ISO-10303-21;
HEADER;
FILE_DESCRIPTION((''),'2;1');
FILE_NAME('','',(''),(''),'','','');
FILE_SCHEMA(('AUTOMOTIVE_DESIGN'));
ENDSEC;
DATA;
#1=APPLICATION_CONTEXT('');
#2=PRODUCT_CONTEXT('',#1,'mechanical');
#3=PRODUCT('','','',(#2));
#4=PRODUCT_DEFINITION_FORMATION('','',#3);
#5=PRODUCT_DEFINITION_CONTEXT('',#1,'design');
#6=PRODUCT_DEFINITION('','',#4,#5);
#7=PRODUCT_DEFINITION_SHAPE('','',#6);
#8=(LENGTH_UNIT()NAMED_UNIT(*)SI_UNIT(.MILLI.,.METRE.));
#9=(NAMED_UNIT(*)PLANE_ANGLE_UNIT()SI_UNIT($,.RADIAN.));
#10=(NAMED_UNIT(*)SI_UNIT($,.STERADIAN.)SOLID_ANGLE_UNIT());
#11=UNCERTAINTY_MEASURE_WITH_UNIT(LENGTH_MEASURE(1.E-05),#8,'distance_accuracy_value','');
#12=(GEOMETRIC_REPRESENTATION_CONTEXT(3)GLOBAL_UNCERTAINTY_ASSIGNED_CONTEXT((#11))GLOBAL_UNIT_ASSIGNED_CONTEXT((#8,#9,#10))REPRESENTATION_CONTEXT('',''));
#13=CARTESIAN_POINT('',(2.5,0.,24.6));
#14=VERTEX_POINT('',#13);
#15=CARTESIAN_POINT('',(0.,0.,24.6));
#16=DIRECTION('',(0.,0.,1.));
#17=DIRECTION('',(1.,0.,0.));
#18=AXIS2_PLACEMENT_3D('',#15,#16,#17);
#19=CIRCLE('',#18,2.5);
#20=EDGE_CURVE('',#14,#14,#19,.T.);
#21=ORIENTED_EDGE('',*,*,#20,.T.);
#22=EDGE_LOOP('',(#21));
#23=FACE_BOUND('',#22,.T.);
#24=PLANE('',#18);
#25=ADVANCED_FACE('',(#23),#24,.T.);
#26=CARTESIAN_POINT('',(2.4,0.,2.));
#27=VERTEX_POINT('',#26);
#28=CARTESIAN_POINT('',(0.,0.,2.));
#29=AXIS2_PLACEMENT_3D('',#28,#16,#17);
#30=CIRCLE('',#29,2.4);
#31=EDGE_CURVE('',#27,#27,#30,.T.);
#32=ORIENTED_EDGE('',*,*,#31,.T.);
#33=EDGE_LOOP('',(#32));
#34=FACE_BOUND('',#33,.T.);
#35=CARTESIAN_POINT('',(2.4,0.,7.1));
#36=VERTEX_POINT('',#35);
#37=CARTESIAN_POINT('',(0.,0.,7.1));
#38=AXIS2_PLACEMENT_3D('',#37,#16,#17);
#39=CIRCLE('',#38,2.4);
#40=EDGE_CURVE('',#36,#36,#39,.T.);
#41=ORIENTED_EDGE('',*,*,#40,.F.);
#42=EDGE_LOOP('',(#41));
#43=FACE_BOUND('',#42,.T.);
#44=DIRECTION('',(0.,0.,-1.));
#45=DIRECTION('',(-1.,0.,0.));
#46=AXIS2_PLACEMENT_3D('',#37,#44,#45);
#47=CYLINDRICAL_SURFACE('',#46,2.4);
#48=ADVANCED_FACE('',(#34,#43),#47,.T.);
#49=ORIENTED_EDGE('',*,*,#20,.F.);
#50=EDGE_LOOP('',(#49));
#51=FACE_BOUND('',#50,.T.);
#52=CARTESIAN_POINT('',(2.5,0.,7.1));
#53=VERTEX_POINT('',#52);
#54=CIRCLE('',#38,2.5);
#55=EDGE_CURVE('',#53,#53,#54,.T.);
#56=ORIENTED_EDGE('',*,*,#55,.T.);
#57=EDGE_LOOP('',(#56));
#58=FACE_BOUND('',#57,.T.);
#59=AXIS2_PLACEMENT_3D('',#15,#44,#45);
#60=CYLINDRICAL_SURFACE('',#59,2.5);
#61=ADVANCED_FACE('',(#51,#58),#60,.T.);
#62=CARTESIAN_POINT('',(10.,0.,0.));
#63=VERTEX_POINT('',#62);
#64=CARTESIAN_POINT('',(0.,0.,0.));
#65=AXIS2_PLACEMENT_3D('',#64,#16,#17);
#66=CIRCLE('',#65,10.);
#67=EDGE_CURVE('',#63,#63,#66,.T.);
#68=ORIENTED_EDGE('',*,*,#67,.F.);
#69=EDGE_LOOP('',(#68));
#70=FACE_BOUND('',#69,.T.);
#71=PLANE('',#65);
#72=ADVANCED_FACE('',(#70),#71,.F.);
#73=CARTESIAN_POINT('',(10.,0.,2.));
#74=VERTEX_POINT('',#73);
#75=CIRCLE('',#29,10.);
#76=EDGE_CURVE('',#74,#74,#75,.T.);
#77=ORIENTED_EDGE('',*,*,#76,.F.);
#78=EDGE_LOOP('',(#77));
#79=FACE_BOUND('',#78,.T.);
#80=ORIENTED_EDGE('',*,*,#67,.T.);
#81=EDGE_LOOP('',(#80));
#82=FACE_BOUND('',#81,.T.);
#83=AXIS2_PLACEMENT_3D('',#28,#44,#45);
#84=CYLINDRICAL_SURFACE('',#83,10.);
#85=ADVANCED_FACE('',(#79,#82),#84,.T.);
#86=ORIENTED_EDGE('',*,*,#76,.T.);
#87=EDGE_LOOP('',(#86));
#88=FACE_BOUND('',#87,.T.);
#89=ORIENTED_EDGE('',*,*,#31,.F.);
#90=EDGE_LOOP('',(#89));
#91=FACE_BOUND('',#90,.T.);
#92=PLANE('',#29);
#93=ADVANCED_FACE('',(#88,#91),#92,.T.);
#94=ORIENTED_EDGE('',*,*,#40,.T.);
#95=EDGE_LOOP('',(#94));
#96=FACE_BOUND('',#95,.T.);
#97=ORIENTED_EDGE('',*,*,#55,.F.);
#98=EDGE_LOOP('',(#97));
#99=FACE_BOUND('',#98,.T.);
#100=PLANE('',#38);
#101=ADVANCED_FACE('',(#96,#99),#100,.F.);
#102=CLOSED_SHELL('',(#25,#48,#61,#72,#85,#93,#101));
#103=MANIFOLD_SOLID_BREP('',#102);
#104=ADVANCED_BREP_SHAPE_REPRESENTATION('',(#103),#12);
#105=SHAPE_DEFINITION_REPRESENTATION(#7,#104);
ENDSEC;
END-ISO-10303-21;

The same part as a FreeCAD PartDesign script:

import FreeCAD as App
import Part
import Sketcher
from FreeCAD import Vector

doc = App.newDocument("Part")
body = doc.addObject("PartDesign::Body", "Body")

# Sketch on XY plane
sketch1 = body.newObject("Sketcher::SketchObject", "Sketch")
sketch1.AttachmentSupport = (doc.getObject("XY_Plane"), [""])
sketch1.MapMode = "FlatFace"
sketch1.addGeometry(Part.Circle(Vector(0, 0, 0), Vector(0, 0, 1), 10), False)
sketch1.addConstraint([
    Sketcher.Constraint("Coincident", 0, 3, -1, 1),
    Sketcher.Constraint("Diameter", 0, 20.0),
])
pad1 = body.newObject("PartDesign::Pad", "Pad")
pad1.Profile = sketch1
pad1.Length = 2

# Sketch on XY plane
sketch2 = body.newObject("Sketcher::SketchObject", "Sketch001")
sketch2.AttachmentSupport = (doc.getObject("XY_Plane"), [""])
sketch2.MapMode = "FlatFace"
sketch2.AttachmentOffset = App.Placement(Vector(0, 0, 2), App.Rotation())
sketch2.addGeometry(Part.Circle(Vector(0, 0, 0), Vector(0, 0, 1), 2.4), False)
sketch2.addConstraint([
    Sketcher.Constraint("Coincident", 0, 3, -1, 1),
    Sketcher.Constraint("Diameter", 0, 4.8),
])
pad2 = body.newObject("PartDesign::Pad", "Pad001")
pad2.Profile = sketch2
pad2.Length = 5.1

# Sketch on XY plane
sketch3 = body.newObject("Sketcher::SketchObject", "Sketch002")
sketch3.AttachmentSupport = (doc.getObject("XY_Plane"), [""])
sketch3.MapMode = "FlatFace"
sketch3.AttachmentOffset = App.Placement(Vector(0, 0, 7.1), App.Rotation())
sketch3.addGeometry(Part.Circle(Vector(0, 0, 0), Vector(0, 0, 1), 2.5), False)
sketch3.addConstraint([
    Sketcher.Constraint("Coincident", 0, 3, -1, 1),
    Sketcher.Constraint("Diameter", 0, 5.0),
])
pad3 = body.newObject("PartDesign::Pad", "Pad002")
pad3.Profile = sketch3
pad3.Length = 17.5

doc.recompute()
